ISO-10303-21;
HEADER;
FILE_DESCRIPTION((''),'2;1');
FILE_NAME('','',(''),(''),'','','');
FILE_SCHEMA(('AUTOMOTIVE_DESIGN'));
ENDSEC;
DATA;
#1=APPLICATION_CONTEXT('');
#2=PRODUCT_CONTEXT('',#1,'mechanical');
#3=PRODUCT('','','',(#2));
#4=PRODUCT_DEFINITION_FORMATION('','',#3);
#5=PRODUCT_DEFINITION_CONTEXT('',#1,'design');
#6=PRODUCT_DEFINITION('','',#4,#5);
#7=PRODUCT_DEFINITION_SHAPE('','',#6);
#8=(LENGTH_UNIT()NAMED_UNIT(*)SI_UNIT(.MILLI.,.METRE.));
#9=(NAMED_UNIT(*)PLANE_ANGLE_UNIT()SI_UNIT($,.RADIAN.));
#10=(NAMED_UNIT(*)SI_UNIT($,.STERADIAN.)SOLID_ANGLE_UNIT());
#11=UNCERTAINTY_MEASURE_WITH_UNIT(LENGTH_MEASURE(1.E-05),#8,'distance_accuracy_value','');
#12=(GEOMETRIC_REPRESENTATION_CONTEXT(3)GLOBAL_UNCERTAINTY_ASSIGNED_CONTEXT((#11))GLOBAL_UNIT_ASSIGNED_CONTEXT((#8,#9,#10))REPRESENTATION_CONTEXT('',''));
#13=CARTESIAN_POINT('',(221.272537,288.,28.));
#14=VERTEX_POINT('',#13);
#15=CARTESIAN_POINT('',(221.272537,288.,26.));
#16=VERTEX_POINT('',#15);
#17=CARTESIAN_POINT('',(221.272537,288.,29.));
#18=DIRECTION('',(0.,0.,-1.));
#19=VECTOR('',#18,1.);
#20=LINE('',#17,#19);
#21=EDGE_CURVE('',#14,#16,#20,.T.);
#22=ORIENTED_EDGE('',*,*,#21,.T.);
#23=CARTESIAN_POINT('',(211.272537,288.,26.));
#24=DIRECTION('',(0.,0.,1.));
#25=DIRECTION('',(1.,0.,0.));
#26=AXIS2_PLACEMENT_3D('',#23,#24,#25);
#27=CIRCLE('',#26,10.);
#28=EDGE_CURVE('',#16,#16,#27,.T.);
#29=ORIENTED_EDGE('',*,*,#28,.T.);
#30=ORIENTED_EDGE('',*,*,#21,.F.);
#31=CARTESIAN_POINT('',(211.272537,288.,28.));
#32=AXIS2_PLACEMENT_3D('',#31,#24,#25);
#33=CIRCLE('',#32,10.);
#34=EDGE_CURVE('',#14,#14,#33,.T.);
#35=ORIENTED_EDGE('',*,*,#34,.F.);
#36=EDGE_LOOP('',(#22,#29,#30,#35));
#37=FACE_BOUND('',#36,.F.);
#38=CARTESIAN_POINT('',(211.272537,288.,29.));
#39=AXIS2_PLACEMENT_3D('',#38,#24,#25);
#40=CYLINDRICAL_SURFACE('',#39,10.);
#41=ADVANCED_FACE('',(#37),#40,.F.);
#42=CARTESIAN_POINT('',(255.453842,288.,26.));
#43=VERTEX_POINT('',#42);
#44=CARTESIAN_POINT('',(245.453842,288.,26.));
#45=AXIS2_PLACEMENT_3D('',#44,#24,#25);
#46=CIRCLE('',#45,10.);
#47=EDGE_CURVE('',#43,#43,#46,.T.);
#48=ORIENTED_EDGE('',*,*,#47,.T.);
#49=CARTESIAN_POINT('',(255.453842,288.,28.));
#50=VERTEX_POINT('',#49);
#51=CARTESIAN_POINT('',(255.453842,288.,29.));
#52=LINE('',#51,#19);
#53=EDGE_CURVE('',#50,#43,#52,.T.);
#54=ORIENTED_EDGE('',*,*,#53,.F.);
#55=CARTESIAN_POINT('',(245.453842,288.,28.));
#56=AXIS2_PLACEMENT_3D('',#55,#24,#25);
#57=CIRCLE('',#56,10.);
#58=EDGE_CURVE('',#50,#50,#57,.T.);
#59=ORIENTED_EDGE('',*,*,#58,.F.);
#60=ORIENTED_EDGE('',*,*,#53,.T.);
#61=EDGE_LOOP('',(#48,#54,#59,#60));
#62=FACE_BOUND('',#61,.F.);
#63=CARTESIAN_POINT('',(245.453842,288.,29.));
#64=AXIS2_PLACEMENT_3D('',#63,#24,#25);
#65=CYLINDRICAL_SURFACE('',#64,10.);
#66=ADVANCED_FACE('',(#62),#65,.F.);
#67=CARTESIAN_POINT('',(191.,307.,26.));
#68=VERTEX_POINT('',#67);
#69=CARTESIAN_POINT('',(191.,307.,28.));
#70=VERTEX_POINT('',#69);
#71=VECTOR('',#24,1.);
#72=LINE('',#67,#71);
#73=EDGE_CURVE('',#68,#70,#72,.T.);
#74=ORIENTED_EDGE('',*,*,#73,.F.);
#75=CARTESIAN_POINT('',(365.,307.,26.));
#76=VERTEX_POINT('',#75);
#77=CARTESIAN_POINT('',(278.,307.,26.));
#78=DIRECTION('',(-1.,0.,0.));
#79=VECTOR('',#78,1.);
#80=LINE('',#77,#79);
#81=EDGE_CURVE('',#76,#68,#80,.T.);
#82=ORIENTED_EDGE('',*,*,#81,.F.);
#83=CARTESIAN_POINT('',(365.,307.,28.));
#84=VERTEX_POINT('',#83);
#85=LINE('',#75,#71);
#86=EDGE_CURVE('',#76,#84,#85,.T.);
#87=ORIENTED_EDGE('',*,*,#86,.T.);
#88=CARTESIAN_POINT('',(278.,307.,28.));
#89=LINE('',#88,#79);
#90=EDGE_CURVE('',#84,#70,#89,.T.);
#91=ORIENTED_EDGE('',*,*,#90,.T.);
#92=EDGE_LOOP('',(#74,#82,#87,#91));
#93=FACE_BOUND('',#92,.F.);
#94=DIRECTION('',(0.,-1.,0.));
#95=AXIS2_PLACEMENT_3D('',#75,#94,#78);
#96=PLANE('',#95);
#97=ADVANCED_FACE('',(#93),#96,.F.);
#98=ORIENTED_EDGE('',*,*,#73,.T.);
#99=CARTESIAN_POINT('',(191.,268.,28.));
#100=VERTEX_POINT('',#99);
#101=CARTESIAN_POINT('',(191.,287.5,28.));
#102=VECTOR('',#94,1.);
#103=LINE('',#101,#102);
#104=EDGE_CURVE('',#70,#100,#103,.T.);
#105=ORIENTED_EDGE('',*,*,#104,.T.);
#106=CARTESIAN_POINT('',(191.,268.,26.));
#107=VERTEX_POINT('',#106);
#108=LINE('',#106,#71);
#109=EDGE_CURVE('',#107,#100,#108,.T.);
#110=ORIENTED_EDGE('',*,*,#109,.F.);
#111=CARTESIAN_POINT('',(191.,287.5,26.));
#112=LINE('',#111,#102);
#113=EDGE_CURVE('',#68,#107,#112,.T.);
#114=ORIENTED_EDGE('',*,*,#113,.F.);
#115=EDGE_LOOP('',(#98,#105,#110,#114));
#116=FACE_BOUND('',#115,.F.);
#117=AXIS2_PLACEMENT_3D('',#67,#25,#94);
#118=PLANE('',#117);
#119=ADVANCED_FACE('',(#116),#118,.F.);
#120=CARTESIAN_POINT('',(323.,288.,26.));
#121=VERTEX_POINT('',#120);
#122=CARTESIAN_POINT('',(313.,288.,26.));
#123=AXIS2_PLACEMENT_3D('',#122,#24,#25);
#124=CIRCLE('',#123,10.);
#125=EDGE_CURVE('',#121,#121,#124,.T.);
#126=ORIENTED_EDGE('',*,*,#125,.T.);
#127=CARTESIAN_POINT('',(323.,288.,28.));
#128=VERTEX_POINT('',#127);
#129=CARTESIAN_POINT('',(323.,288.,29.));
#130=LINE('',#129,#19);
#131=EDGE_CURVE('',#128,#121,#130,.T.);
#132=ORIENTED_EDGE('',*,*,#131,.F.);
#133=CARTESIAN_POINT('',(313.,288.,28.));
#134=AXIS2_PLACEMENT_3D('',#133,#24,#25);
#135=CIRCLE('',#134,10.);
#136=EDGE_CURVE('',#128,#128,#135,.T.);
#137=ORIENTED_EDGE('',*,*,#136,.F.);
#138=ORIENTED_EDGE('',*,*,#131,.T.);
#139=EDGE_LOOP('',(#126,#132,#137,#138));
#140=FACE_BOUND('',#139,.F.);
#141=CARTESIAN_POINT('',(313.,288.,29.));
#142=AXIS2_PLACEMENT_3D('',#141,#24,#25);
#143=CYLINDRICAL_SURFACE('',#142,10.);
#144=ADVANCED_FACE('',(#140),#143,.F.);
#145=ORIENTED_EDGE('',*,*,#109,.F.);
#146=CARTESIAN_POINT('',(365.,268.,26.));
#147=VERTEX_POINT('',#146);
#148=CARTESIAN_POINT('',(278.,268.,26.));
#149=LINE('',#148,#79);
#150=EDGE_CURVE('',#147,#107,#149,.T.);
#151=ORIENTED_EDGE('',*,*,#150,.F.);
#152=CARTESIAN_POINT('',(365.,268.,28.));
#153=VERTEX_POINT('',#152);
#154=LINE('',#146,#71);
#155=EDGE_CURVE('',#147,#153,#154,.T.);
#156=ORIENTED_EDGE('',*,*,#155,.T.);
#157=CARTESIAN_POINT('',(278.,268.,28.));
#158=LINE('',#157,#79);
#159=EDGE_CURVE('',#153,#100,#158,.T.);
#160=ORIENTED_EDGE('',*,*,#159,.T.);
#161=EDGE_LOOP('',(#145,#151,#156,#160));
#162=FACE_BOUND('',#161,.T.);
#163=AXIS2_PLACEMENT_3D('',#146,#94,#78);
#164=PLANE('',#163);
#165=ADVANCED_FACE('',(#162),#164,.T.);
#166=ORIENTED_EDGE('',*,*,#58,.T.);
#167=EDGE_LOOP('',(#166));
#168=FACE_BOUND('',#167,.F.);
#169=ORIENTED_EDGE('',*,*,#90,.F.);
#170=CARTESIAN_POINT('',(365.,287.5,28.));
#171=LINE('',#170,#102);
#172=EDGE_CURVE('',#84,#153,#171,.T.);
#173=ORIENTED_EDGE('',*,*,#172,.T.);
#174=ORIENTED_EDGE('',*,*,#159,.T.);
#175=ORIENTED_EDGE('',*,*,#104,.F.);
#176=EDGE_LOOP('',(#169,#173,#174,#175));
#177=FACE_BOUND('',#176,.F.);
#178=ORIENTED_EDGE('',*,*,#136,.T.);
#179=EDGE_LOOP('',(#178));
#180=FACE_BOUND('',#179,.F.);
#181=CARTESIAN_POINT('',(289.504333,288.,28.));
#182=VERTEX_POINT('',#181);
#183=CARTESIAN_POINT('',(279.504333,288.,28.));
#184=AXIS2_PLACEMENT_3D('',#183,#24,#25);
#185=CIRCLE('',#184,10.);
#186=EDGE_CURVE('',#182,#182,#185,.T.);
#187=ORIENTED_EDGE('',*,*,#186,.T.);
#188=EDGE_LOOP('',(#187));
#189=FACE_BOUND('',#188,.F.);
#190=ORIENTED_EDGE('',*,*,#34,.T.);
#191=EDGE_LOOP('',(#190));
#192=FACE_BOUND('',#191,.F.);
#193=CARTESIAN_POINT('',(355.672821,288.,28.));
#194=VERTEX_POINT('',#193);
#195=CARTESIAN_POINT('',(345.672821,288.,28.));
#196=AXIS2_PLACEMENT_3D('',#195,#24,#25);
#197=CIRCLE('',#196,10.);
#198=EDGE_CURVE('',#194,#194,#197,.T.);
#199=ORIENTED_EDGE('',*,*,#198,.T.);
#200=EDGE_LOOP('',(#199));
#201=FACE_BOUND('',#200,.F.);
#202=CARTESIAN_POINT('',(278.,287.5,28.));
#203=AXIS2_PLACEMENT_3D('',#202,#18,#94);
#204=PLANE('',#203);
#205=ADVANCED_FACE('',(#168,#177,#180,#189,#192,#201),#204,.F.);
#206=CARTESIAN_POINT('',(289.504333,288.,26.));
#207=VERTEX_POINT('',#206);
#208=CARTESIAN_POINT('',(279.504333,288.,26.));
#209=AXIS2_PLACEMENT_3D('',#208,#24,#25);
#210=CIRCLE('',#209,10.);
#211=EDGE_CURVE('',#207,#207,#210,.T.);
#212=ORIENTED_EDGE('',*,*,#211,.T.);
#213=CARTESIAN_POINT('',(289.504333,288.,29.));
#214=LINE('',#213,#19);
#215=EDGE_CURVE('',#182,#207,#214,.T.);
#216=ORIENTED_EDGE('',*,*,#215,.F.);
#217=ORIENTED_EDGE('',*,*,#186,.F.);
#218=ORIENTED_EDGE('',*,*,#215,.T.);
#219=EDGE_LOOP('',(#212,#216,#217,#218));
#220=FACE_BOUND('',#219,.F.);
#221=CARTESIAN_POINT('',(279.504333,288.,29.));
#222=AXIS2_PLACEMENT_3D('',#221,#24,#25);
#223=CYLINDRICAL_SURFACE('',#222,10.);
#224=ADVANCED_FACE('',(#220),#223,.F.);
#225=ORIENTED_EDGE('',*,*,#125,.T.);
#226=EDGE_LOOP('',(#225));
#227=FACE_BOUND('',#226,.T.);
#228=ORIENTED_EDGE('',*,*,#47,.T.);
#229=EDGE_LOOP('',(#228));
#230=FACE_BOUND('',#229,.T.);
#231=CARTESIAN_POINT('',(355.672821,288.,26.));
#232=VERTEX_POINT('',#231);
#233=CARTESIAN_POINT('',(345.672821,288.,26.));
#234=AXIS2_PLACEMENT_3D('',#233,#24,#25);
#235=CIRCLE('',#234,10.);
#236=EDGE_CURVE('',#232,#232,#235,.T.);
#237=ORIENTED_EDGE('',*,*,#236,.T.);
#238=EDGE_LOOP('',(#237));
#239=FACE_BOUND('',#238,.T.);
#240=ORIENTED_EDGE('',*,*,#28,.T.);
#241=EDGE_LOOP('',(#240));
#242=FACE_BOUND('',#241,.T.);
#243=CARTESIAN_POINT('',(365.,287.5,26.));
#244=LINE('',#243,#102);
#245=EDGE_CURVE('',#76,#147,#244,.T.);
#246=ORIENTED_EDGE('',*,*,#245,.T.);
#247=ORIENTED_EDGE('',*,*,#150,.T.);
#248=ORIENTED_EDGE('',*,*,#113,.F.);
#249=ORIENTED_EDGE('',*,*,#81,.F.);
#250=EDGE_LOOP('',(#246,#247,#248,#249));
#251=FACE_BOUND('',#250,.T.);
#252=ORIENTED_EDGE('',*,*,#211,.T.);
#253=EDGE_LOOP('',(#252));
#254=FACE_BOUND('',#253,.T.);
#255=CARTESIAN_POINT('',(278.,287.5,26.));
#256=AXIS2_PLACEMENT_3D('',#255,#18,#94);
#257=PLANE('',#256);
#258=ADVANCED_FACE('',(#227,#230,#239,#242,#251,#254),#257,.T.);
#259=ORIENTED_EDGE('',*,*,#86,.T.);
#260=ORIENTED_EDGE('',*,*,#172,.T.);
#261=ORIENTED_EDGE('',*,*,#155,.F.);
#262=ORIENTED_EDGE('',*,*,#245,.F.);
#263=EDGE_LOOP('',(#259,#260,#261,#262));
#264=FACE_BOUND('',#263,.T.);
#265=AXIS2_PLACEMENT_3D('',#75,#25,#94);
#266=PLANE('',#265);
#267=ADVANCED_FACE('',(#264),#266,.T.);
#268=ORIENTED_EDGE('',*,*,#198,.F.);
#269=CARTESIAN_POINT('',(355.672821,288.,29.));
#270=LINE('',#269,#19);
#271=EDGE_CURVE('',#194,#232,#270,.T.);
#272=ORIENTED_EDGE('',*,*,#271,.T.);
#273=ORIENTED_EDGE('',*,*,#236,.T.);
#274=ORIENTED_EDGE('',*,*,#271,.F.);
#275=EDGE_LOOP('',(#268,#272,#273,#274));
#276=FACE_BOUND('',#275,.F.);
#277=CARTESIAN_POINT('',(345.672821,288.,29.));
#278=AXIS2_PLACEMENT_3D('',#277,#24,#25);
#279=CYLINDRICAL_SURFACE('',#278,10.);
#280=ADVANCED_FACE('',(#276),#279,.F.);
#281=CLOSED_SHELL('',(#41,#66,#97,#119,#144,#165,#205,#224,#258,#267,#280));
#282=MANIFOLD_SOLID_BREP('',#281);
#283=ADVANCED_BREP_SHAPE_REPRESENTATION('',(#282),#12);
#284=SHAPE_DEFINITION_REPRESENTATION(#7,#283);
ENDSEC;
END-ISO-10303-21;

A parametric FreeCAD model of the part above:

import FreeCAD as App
import Part
import Sketcher
Q = App.Units.Quantity


def add_polygon(sketch, points):
    """Adds a closed chain of lines whose ends are joined by coincident constraints."""
    first, n = sketch.GeometryCount, len(points)
    for a, b in zip(points, points[1:] + points[:1]):
        sketch.addGeometry(Part.LineSegment(App.Vector(*a, 0), App.Vector(*b, 0)), False)
    for i in range(n):
        sketch.addConstraint(Sketcher.Constraint("Coincident", first + i, 2, first + (i + 1) % n, 1))

doc = App.newDocument("Part")
params = doc.addObject("Spreadsheet::Sheet", "Params")
for row, (alias, value) in enumerate([
    ("sketch1_diameter", "20 mm"),
    ("pad1_length", "4 mm"),
    ("sketch2_width", "174 mm"),
    ("sketch2_height", "39 mm"),
    ("pad2_length", "2 mm"),
], start=1):
    params.set(f"A{row}", alias)
    params.set(f"B{row}", "=" + value)
    params.setAlias(f"B{row}", alias)

body = doc.addObject("PartDesign::Body", "Body")
body.AllowCompound = True

sketch1 = doc.addObject("Sketcher::SketchObject", "Sketch")
body.addObject(sketch1)
sketch1.AttachmentSupport = (doc.XY_Plane, [""])
sketch1.MapMode = "FlatFace"
sketch1.AttachmentOffset = App.Placement(App.Vector(0, 0, 29), App.Rotation())
sketch1.addGeometry([
    Part.Circle(App.Vector(211.272537, 288, 0), App.Vector(0, 0, 1), 10),
    Part.Circle(App.Vector(245.453842, 288, 0), App.Vector(0, 0, 1), 10),
    Part.Circle(App.Vector(279.504333, 288, 0), App.Vector(0, 0, 1), 10),
    Part.Circle(App.Vector(345.672821, 288, 0), App.Vector(0, 0, 1), 10),
    Part.Circle(App.Vector(313, 288, 0), App.Vector(0, 0, 1), 10),
], False)
sketch1.addConstraint([
    Sketcher.Constraint("Equal", 0, 1),
    Sketcher.Constraint("Equal", 1, 2),
    Sketcher.Constraint("Equal", 2, 3),
    Sketcher.Constraint("Equal", 3, 4),
    Sketcher.Constraint("Horizontal", 0, 3, 1, 3),
    Sketcher.Constraint("Horizontal", 1, 3, 2, 3),
    Sketcher.Constraint("Horizontal", 2, 3, 3, 3),
    Sketcher.Constraint("Horizontal", 3, 3, 4, 3),
    Sketcher.Constraint("Diameter", 0, Q("20 mm")),
    Sketcher.Constraint("DistanceY", -1, 1, 0, 3, Q("288 mm")),
    Sketcher.Constraint("DistanceX", -1, 1, 4, 3, Q("313 mm")),
    Sketcher.Constraint("DistanceX", -1, 1, 1, 3, Q("245.453842 mm")),
    Sketcher.Constraint("DistanceX", -1, 1, 3, 3, Q("345.672821 mm")),
    Sketcher.Constraint("DistanceX", 1, 3, 2, 3, Q("34.050491 mm")),
    Sketcher.Constraint("DistanceX", -1, 1, 0, 3, Q("211.272537 mm")),
])
sketch1.setExpression("Constraints[8]", "Params.sketch1_diameter")
pad1 = doc.addObject("PartDesign::Pad", "Pad")
body.addObject(pad1)
pad1.Profile = sketch1
pad1.setExpression("Length", "Params.pad1_length")
pad1.Reversed = True
body2 = doc.addObject("PartDesign::Body", "Body001")

sketch2 = doc.addObject("Sketcher::SketchObject", "Sketch001")
body2.addObject(sketch2)
sketch2.AttachmentSupport = (doc.getObject("XY_Plane001"), [""])
sketch2.MapMode = "FlatFace"
sketch2.AttachmentOffset = App.Placement(App.Vector(0, 0, 26), App.Rotation())
add_polygon(sketch2, [(191, 307), (365, 307), (365, 268), (191, 268)])
sketch2.addConstraint([
    Sketcher.Constraint("Horizontal", 0),
    Sketcher.Constraint("Vertical", 1),
    Sketcher.Constraint("Horizontal", 2),
    Sketcher.Constraint("Vertical", 3),
    Sketcher.Constraint("DistanceX", 0, 1, 0, 2, Q("174 mm")),
    Sketcher.Constraint("DistanceY", 1, 2, 1, 1, Q("39 mm")),
    Sketcher.Constraint("DistanceX", -1, 1, 0, 2, Q("365 mm")),
    Sketcher.Constraint("DistanceY", -1, 1, 0, 2, Q("307 mm")),
])
sketch2.setExpression("Constraints[8]", "Params.sketch2_width")
sketch2.setExpression("Constraints[9]", "Params.sketch2_height")
pad2 = doc.addObject("PartDesign::Pad", "Pad001")
body2.addObject(pad2)
pad2.Profile = sketch2
pad2.setExpression("Length", "Params.pad2_length")
doc.recompute()

boolean = doc.addObject("PartDesign::Boolean", "Boolean")
body2.addObject(boolean)
boolean.Type = "Cut"
boolean.addObjects([body])

doc.recompute()
